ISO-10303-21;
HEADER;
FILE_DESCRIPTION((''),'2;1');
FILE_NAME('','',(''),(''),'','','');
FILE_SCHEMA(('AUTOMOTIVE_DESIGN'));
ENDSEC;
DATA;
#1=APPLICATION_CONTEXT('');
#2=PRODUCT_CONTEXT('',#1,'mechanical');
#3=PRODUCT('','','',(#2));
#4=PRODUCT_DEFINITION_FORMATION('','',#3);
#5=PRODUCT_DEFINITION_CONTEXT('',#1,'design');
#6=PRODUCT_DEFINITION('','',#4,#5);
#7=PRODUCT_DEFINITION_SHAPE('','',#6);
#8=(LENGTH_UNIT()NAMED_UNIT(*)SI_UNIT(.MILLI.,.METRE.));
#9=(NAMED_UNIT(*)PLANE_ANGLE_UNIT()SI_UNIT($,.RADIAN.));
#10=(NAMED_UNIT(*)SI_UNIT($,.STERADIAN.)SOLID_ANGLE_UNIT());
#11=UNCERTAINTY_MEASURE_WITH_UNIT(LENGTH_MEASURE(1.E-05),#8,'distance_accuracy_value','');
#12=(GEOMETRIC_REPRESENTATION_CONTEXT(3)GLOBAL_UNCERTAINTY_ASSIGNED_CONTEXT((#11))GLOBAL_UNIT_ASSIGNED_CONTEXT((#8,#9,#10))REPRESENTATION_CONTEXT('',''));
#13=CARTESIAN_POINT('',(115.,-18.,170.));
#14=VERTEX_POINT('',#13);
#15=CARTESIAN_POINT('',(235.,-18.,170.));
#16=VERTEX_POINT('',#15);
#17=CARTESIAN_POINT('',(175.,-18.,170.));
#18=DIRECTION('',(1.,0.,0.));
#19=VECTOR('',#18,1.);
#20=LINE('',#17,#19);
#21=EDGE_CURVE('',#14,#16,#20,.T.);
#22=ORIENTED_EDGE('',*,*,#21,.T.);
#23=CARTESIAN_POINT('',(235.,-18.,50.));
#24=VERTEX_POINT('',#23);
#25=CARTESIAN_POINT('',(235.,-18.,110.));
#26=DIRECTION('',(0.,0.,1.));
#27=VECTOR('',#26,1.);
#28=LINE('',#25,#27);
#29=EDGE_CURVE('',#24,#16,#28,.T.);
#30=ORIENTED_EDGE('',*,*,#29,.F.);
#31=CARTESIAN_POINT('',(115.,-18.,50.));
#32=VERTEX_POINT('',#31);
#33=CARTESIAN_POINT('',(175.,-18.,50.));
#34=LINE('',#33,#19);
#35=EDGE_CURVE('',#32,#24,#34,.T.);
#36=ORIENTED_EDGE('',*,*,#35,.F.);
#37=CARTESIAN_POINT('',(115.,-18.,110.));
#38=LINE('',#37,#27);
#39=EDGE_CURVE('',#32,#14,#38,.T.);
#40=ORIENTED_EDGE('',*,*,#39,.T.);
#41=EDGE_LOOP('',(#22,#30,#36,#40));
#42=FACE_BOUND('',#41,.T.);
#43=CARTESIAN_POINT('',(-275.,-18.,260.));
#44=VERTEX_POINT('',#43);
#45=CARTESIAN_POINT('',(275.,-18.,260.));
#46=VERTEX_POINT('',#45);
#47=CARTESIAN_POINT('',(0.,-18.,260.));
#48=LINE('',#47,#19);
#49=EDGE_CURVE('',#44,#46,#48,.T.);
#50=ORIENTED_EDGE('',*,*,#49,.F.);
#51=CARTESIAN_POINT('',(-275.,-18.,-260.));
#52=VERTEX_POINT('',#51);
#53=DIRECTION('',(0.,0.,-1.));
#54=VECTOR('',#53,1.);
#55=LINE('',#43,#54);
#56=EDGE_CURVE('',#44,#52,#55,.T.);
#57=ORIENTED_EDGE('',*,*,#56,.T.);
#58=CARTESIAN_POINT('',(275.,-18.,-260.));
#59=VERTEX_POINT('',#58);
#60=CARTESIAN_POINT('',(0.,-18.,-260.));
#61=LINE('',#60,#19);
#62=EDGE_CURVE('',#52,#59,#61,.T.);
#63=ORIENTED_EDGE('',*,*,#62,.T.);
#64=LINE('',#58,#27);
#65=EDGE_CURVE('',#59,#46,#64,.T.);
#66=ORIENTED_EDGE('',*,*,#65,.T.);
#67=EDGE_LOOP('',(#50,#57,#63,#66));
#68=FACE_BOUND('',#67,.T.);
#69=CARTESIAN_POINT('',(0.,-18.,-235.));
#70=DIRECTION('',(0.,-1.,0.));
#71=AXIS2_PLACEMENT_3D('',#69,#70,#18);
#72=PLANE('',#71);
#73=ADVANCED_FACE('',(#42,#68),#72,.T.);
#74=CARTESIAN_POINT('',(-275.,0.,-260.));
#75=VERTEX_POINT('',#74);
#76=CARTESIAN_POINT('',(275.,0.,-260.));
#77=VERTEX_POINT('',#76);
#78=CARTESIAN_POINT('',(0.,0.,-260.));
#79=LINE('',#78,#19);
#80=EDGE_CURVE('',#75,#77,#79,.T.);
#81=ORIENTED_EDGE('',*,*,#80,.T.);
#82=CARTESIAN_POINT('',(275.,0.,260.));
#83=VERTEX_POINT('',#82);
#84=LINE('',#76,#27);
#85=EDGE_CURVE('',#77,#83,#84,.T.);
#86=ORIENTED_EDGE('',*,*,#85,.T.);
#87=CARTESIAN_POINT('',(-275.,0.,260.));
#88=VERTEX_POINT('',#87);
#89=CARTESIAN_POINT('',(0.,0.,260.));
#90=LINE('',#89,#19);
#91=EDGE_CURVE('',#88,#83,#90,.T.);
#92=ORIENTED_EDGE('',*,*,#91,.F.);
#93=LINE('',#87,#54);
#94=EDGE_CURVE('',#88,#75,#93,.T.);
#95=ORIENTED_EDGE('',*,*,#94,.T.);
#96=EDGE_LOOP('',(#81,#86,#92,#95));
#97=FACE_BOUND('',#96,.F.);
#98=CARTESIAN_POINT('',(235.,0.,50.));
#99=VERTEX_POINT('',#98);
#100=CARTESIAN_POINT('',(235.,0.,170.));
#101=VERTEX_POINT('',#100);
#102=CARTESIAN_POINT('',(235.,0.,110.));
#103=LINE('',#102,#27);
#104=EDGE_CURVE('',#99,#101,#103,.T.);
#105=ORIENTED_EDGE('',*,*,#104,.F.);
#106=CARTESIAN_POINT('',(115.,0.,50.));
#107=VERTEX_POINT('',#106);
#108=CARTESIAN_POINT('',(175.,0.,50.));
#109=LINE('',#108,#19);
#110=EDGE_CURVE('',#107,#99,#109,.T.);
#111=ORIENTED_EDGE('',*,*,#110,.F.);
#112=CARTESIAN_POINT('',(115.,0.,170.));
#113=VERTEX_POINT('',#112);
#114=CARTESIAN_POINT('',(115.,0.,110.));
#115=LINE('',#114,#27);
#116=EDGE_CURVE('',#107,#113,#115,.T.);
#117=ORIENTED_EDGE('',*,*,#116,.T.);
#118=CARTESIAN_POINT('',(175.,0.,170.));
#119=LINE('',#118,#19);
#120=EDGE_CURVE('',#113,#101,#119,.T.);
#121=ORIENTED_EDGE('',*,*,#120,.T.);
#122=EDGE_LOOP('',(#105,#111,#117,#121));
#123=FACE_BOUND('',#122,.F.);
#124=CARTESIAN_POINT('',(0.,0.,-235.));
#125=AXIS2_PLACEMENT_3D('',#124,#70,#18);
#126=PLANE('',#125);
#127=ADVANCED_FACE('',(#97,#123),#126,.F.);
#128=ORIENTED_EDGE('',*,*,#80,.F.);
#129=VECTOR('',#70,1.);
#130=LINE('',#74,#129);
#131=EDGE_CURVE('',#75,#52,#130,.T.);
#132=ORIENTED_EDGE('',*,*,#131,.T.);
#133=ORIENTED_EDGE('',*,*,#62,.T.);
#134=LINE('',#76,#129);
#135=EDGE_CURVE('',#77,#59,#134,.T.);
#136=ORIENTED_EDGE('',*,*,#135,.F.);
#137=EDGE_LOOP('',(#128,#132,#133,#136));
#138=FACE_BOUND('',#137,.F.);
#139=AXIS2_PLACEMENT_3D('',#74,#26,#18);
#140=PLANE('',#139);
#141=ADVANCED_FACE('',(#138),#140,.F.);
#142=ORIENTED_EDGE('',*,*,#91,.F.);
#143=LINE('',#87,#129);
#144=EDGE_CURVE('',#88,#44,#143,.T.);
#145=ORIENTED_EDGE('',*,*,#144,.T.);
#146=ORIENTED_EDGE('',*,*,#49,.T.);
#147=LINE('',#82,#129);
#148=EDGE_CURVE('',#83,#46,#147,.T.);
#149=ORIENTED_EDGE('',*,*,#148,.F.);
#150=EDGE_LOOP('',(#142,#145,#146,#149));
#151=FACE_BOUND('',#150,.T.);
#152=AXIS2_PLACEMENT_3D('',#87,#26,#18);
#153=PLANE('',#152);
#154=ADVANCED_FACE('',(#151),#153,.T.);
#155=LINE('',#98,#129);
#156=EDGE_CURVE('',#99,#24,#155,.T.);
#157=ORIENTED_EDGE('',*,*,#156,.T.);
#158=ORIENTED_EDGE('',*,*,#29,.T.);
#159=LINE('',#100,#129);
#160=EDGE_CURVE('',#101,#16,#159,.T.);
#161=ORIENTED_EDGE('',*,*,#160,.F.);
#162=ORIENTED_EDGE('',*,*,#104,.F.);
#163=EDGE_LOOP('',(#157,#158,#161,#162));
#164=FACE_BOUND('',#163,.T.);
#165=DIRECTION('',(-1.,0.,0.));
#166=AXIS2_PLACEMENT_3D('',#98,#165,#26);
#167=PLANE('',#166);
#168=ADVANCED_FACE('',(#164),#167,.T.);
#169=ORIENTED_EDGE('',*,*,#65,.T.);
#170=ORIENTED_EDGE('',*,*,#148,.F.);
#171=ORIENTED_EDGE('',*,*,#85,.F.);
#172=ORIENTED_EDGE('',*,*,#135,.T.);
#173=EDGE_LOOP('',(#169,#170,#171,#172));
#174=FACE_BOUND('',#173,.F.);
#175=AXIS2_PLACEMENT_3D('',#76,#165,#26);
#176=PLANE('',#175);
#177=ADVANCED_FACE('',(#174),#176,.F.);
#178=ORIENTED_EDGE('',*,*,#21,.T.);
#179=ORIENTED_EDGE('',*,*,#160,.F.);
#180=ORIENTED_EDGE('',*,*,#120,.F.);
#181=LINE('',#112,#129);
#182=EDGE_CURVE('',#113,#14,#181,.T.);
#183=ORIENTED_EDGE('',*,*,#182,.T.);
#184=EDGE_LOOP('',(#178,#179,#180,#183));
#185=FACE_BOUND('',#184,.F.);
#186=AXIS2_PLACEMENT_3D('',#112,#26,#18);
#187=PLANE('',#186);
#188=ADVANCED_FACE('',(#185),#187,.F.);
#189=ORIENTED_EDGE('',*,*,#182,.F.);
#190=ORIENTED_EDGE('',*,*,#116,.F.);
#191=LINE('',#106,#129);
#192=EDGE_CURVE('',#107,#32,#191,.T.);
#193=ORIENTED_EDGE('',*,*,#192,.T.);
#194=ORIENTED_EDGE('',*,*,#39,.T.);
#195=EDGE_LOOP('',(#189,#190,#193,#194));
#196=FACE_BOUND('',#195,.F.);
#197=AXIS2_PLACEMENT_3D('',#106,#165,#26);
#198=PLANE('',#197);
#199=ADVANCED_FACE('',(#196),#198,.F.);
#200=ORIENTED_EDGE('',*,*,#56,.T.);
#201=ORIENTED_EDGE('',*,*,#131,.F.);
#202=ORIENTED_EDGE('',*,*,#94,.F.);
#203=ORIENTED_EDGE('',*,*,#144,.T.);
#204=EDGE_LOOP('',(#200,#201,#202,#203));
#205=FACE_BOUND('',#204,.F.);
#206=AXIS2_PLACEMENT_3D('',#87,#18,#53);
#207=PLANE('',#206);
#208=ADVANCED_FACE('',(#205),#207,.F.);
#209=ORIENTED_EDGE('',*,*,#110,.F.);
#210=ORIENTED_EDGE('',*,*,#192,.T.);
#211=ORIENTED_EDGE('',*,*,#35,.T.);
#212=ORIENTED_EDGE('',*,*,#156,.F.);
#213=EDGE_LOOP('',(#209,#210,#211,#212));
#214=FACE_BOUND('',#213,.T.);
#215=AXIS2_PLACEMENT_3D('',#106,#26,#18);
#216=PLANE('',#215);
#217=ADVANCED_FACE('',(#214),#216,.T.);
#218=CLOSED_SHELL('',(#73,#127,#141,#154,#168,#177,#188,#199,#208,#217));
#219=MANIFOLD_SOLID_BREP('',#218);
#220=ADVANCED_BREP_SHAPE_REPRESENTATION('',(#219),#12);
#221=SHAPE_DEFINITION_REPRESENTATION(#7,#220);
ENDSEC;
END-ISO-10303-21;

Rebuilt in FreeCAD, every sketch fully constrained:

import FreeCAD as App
import Part
import Sketcher
Q = App.Units.Quantity

doc = App.newDocument("Part")
params = doc.addObject("Spreadsheet::Sheet", "Params")
for row, (alias, value) in enumerate([
    ("sketch1_width", "550 mm"),
    ("sketch1_width2", "120 mm"),
    ("sketch1_height", "520 mm"),
    ("pad1_length", "18 mm"),
], start=1):
    params.set(f"A{row}", alias)
    params.set(f"B{row}", "=" + value)
    params.setAlias(f"B{row}", alias)

body = doc.addObject("PartDesign::Body", "Body")

# Sketch on XZ plane
sketch1 = doc.addObject("Sketcher::SketchObject", "Sketch")
body.addObject(sketch1)
sketch1.AttachmentSupport = (doc.XZ_Plane, [""])
sketch1.MapMode = "FlatFace"
sketch1.addGeometry(Part.LineSegment(App.Vector(-275, -260, 0), App.Vector(275, -260, 0)), False)
sketch1.addGeometry(Part.LineSegment(App.Vector(275, -260, 0), App.Vector(275, 260, 0)), False)
sketch1.addGeometry(Part.LineSegment(App.Vector(275, 260, 0), App.Vector(-275, 260, 0)), False)
sketch1.addGeometry(Part.LineSegment(App.Vector(-275, 260, 0), App.Vector(-275, -260, 0)), False)
sketch1.addGeometry(Part.LineSegment(App.Vector(235, 50, 0), App.Vector(115, 50, 0)), False)
sketch1.addGeometry(Part.LineSegment(App.Vector(115, 50, 0), App.Vector(115, 170, 0)), False)
sketch1.addGeometry(Part.LineSegment(App.Vector(115, 170, 0), App.Vector(235, 170, 0)), False)
sketch1.addGeometry(Part.LineSegment(App.Vector(235, 170, 0), App.Vector(235, 50, 0)), False)
sketch1.addConstraint(Sketcher.Constraint("Coincident", 0, 2, 1, 1))
sketch1.addConstraint(Sketcher.Constraint("Coincident", 1, 2, 2, 1))
sketch1.addConstraint(Sketcher.Constraint("Coincident", 2, 2, 3, 1))
sketch1.addConstraint(Sketcher.Constraint("Coincident", 3, 2, 0, 1))
sketch1.addConstraint(Sketcher.Constraint("Coincident", 4, 2, 5, 1))
sketch1.addConstraint(Sketcher.Constraint("Coincident", 5, 2, 6, 1))
sketch1.addConstraint(Sketcher.Constraint("Coincident", 6, 2, 7, 1))
sketch1.addConstraint(Sketcher.Constraint("Coincident", 7, 2, 4, 1))
sketch1.addConstraint(Sketcher.Constraint("Horizontal", 0))
sketch1.addConstraint(Sketcher.Constraint("Vertical", 1))
sketch1.addConstraint(Sketcher.Constraint("Horizontal", 2))
sketch1.addConstraint(Sketcher.Constraint("Vertical", 3))
sketch1.addConstraint(Sketcher.Constraint("Horizontal", 4))
sketch1.addConstraint(Sketcher.Constraint("Vertical", 5))
sketch1.addConstraint(Sketcher.Constraint("Horizontal", 6))
sketch1.addConstraint(Sketcher.Constraint("Vertical", 7))
sketch1.addConstraint(Sketcher.Constraint("Symmetric", 0, 2, 2, 2, -1, 1))
sketch1.addConstraint(Sketcher.Constraint("Equal", 6, 5))
sketch1.addConstraint(Sketcher.Constraint("DistanceX", 0, 1, 0, 2, Q("550 mm")))
sketch1.addConstraint(Sketcher.Constraint("DistanceX", 4, 2, 4, 1, Q("120 mm")))
sketch1.addConstraint(Sketcher.Constraint("DistanceY", 1, 1, 1, 2, Q("520 mm")))
sketch1.addConstraint(Sketcher.Constraint("DistanceX", -1, 1, 4, 2, Q("115 mm")))
sketch1.addConstraint(Sketcher.Constraint("DistanceY", -1, 1, 4, 2, Q("50 mm")))
sketch1.setExpression("Constraints[18]", "Params.sketch1_width")
sketch1.setExpression("Constraints[19]", "Params.sketch1_width2")
sketch1.setExpression("Constraints[20]", "Params.sketch1_height")
pad1 = doc.addObject("PartDesign::Pad", "Pad")
body.addObject(pad1)
pad1.Profile = sketch1
pad1.setExpression("Length", "Params.pad1_length")

doc.recompute()
